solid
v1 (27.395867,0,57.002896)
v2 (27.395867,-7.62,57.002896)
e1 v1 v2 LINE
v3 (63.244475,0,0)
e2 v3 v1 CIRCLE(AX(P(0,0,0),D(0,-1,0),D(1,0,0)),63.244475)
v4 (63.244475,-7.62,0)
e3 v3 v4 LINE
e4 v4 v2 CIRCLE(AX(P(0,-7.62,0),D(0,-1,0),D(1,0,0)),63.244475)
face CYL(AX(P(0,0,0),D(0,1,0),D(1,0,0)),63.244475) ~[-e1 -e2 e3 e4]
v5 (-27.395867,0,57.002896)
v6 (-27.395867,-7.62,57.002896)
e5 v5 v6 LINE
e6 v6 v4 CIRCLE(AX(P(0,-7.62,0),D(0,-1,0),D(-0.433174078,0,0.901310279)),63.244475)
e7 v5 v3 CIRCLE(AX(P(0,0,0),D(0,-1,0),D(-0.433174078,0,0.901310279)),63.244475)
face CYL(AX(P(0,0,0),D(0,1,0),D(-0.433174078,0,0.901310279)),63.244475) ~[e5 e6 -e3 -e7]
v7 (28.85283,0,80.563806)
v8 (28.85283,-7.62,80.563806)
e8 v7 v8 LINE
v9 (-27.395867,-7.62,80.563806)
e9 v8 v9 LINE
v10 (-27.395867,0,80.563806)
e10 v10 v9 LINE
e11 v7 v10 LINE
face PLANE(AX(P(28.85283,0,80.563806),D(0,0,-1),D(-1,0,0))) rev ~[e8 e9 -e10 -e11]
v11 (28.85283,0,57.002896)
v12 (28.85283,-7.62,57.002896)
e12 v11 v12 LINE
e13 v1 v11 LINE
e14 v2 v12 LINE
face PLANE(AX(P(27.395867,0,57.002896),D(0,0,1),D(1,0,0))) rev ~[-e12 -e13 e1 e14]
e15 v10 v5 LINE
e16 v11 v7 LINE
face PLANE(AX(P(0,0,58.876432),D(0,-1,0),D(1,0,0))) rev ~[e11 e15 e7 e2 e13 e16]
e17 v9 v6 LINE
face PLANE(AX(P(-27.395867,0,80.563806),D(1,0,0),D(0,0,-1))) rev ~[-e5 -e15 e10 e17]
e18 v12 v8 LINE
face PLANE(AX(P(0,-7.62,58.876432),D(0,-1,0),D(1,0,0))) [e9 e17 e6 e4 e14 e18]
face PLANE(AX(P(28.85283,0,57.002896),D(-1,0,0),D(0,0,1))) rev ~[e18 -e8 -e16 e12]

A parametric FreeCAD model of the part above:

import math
import FreeCAD as App
import Part
import Sketcher

V = App.Vector

doc = App.newDocument("Part")
params = doc.addObject("Spreadsheet::Sheet", "Params")
for row, (alias, value) in enumerate([
    ("pad1_length", "0.3 in"),
    ("pad2_length", "0.3 in"),
], start=1):
    params.set(f"A{row}", alias)
    params.set(f"B{row}", "=" + value)
    params.setAlias(f"B{row}", alias)

body = doc.addObject("PartDesign::Body", "Body")

sketch1 = body.newObject("Sketcher::SketchObject", "Sketch")
sketch1.AttachmentSupport = (doc.getObject("XZ_Plane"), [""])
sketch1.MapMode = "FlatFace"
sketch1.addGeometry([
    Part.ArcOfCircle(Part.Circle(V(0, 0, 0), V(0, 0, 1), 63), math.radians(116), math.radians(360)),
    Part.ArcOfCircle(Part.Circle(V(0, 0, 0), V(0, 0, 1), 63), math.radians(0), math.radians(116)),
], False)
sketch1.addConstraint([
    Sketcher.Constraint("Tangent", 0, 1, 1, 2),
    Sketcher.Constraint("Coincident", 1, 1, 0, 2),
    Sketcher.Constraint("Coincident", 0, 3, -1, 1),
    Sketcher.Constraint("PointOnObject", 1, 1, -1),
    Sketcher.Constraint("Radius", 0, 63.244475),
    Sketcher.Constraint("DistanceX", 0, 1, -1, 1, 27.395867),
])
pad1 = body.newObject("PartDesign::Pad", "Pad")
pad1.Profile = sketch1
pad1.setExpression("Length", "Params.pad1_length")

sketch2 = body.newObject("Sketcher::SketchObject", "Sketch001")
sketch2.AttachmentSupport = (doc.getObject("XZ_Plane"), [""])
sketch2.MapMode = "FlatFace"
sketch2.addGeometry([
    Part.ArcOfCircle(Part.Circle(V(0, 0, 0), V(0, 0, 1), 63.2), math.radians(116), math.radians(360)),
    Part.ArcOfCircle(Part.Circle(V(0, 0, 0), V(0, 0, 1), 63.2), math.radians(0), math.radians(64)),
    Part.LineSegment(V(27.4, 57, 0), V(28.9, 57, 0)),
    Part.LineSegment(V(28.9, 57, 0), V(28.9, 80.6, 0)),
    Part.LineSegment(V(28.9, 80.6, 0), V(-27.4, 80.6, 0)),
    Part.LineSegment(V(-27.4, 80.6, 0), V(-27.4, 57, 0)),
], False)
sketch2.addConstraint([
    Sketcher.Constraint("Tangent", 0, 2, 1, 1),
    Sketcher.Constraint("Coincident", 1, 2, 2, 1),
    Sketcher.Constraint("Coincident", 2, 2, 3, 1),
    Sketcher.Constraint("Coincident", 3, 2, 4, 1),
    Sketcher.Constraint("Coincident", 4, 2, 5, 1),
    Sketcher.Constraint("Coincident", 5, 2, 0, 1),
    Sketcher.Constraint("Horizontal", 2),
    Sketcher.Constraint("Vertical", 3),
    Sketcher.Constraint("Horizontal", 4),
    Sketcher.Constraint("Vertical", 5),
    Sketcher.Constraint("Coincident", 0, 3, -1, 1),
    Sketcher.Constraint("Equal", 0, 1),
    Sketcher.Constraint("PointOnObject", 0, 2, -1),
    Sketcher.Constraint("Horizontal", 2, 2, 5, 2),
    Sketcher.Constraint("Radius", 0, 63.244475),
    Sketcher.Constraint("DistanceY", 3, 1, 3, 2, 23.56091),
    Sketcher.Constraint("DistanceX", 2, 1, 2, 2, 1.456962),
    Sketcher.Constraint("DistanceX", 4, 2, 4, 1, 56.248697),
])
pad2 = body.newObject("PartDesign::Pad", "Pad001")
pad2.Profile = sketch2
pad2.setExpression("Length", "Params.pad2_length")

doc.recompute()
